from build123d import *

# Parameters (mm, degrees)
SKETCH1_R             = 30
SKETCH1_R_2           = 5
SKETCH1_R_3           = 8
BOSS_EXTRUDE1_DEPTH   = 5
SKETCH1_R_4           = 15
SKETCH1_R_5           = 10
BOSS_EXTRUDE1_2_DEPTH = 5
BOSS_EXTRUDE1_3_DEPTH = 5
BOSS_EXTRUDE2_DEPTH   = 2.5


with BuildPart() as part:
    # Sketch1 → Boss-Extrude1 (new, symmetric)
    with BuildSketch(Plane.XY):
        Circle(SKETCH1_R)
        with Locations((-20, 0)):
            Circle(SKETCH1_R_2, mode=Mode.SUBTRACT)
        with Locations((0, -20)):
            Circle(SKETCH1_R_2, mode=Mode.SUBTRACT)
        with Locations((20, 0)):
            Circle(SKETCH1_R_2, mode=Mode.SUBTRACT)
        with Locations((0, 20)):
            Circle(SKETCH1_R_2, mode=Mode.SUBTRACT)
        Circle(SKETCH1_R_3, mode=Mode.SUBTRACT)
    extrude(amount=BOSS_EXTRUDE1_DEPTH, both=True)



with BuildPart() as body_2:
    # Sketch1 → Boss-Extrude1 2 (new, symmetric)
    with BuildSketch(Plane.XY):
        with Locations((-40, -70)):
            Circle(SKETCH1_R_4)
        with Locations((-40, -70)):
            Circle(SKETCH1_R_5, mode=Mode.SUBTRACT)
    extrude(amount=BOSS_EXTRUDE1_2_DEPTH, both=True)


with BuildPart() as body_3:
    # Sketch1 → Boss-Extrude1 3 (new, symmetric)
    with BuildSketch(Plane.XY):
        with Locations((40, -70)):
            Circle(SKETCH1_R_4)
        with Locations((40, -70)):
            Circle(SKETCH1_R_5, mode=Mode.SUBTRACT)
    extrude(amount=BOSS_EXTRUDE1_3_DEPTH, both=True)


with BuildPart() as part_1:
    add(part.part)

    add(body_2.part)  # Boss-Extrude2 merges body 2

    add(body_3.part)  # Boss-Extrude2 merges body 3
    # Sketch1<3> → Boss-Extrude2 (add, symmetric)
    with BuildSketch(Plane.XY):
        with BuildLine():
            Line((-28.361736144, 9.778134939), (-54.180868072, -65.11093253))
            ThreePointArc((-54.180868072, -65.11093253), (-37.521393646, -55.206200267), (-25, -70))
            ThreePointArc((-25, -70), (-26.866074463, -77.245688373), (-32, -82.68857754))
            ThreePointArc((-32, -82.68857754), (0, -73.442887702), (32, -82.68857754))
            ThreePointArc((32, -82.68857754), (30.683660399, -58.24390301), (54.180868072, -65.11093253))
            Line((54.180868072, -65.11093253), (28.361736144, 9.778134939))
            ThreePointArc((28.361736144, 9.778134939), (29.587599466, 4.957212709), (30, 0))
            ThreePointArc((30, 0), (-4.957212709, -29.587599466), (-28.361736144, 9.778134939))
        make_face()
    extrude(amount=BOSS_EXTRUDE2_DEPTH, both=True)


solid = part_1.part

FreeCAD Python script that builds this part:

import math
import FreeCAD as App
import Part
import Sketcher
Q = App.Units.Quantity

doc = App.newDocument("Part")
body = doc.addObject("PartDesign::Body", "Body")

# Sketch on XY plane
sketch1 = doc.addObject("Sketcher::SketchObject", "Sketch")
body.addObject(sketch1)
sketch1.AttachmentSupport = (doc.XY_Plane, [""])
sketch1.MapMode = "FlatFace"
sketch1.addGeometry(Part.Circle(App.Vector(0, 0, 0), App.Vector(0, 0, 1), 30), False)
sketch1.addGeometry(Part.Circle(App.Vector(0, -20, 0), App.Vector(0, 0, 1), 5), False)
sketch1.addGeometry(Part.Circle(App.Vector(-20, 0, 0), App.Vector(0, 0, 1), 5), False)
sketch1.addGeometry(Part.Circle(App.Vector(0, 0, 0), App.Vector(0, 0, 1), 8), False)
sketch1.addGeometry(Part.Circle(App.Vector(20, 0, 0), App.Vector(0, 0, 1), 5), False)
sketch1.addGeometry(Part.Circle(App.Vector(0, 20, 0), App.Vector(0, 0, 1), 5), False)
sketch1.addConstraint(Sketcher.Constraint("Coincident", 0, 3, -1, 1))
sketch1.addConstraint(Sketcher.Constraint("Coincident", 3, 3, -1, 1))
sketch1.addConstraint(Sketcher.Constraint("Equal", 1, 2))
sketch1.addConstraint(Sketcher.Constraint("Equal", 2, 4))
sketch1.addConstraint(Sketcher.Constraint("Equal", 4, 5))
sketch1.addConstraint(Sketcher.Constraint("Symmetric", 2, 3, 4, 3, -1, 1))
sketch1.addConstraint(Sketcher.Constraint("Symmetric", 1, 3, 5, 3, -1, 1))
sketch1.addConstraint(Sketcher.Constraint("PointOnObject", 1, 3, -2))
sketch1.addConstraint(Sketcher.Constraint("PointOnObject", 2, 3, -1))
sketch1.addConstraint(Sketcher.Constraint("Diameter", 0, Q("60 mm")))
sketch1.addConstraint(Sketcher.Constraint("Diameter", 1, Q("10 mm")))
sketch1.addConstraint(Sketcher.Constraint("Diameter", 3, Q("16 mm")))
sketch1.addConstraint(Sketcher.Constraint("DistanceY", 1, 3, -1, 1, Q("20 mm")))
sketch1.addConstraint(Sketcher.Constraint("DistanceX", 2, 3, -1, 1, Q("20 mm")))
pad1 = doc.addObject("PartDesign::Pad", "Pad")
body.addObject(pad1)
pad1.Profile = sketch1
pad1.Length = 10
pad1.Midplane = True
body2 = doc.addObject("PartDesign::Body", "Body001")

# Sketch on XY plane
sketch2 = doc.addObject("Sketcher::SketchObject", "Sketch001")
body2.addObject(sketch2)
sketch2.AttachmentSupport = (doc.getObject("XY_Plane001"), [""])
sketch2.MapMode = "FlatFace"
sketch2.addGeometry(Part.Circle(App.Vector(-40, -70, 0), App.Vector(0, 0, 1), 15), False)
sketch2.addGeometry(Part.Circle(App.Vector(-40, -70, 0), App.Vector(0, 0, 1), 10), False)
sketch2.addConstraint(Sketcher.Constraint("Coincident", 1, 3, 0, 3))
sketch2.addConstraint(Sketcher.Constraint("Diameter", 0, Q("30 mm")))
sketch2.addConstraint(Sketcher.Constraint("Diameter", 1, Q("20 mm")))
sketch2.addConstraint(Sketcher.Constraint("DistanceX", 0, 3, -1, 1, Q("40 mm")))
sketch2.addConstraint(Sketcher.Constraint("DistanceY", 0, 3, -1, 1, Q("70 mm")))
pad2 = doc.addObject("PartDesign::Pad", "Pad001")
body2.addObject(pad2)
pad2.Profile = sketch2
pad2.Length = 10
pad2.Midplane = True
body3 = doc.addObject("PartDesign::Body", "Body002")

# Sketch on XY plane
sketch3 = doc.addObject("Sketcher::SketchObject", "Sketch002")
body3.addObject(sketch3)
sketch3.AttachmentSupport = (doc.getObject("XY_Plane002"), [""])
sketch3.MapMode = "FlatFace"
sketch3.addGeometry(Part.Circle(App.Vector(40, -70, 0), App.Vector(0, 0, 1), 15), False)
sketch3.addGeometry(Part.Circle(App.Vector(40, -70, 0), App.Vector(0, 0, 1), 10), False)
sketch3.addConstraint(Sketcher.Constraint("Coincident", 1, 3, 0, 3))
sketch3.addConstraint(Sketcher.Constraint("Diameter", 0, Q("30 mm")))
sketch3.addConstraint(Sketcher.Constraint("Diameter", 1, Q("20 mm")))
sketch3.addConstraint(Sketcher.Constraint("DistanceX", -1, 1, 0, 3, Q("40 mm")))
sketch3.addConstraint(Sketcher.Constraint("DistanceY", 0, 3, -1, 1, Q("70 mm")))
pad3 = doc.addObject("PartDesign::Pad", "Pad002")
body3.addObject(pad3)
pad3.Profile = sketch3
pad3.Length = 10
pad3.Midplane = True
body.AllowCompound = True
doc.recompute()

boolean = doc.addObject("PartDesign::Boolean", "Boolean")
body.addObject(boolean)
boolean.Type = "Fuse"
boolean.addObjects([body2])
doc.recompute()

boolean2 = doc.addObject("PartDesign::Boolean", "Boolean001")
body.addObject(boolean2)
boolean2.Type = "Fuse"
boolean2.addObjects([body3])

# Sketch on XY plane
sketch4 = doc.addObject("Sketcher::SketchObject", "Sketch003")
body.addObject(sketch4)
sketch4.AttachmentSupport = (doc.XY_Plane, [""])
sketch4.MapMode = "FlatFace"
sketch4.addGeometry(Part.LineSegment(App.Vector(-28.361736, 9.778135, 0), App.Vector(-54.180868, -65.110933, 0)), False)
sketch4.addGeometry(Part.ArcOfCircle(Part.Circle(App.Vector(-40, -70, 0), App.Vector(0, 0, 1), 15), math.radians(0), math.radians(160.977597)), False)
sketch4.addGeometry(Part.ArcOfCircle(Part.Circle(App.Vector(-40, -70, 0), App.Vector(0, 0, 1), 15), math.radians(-57.769047), math.radians(0)), False)
sketch4.addGeometry(Part.ArcOfCircle(Part.Circle(App.Vector(0, -133.442888, 0), App.Vector(0, 0, 1), 60), math.radians(57.769047), math.radians(122.230953)), False)
sketch4.addGeometry(Part.ArcOfCircle(Part.Circle(App.Vector(40, -70, 0), App.Vector(0, 0, 1), 15), math.radians(19.022403), math.radians(237.769047)), False)
sketch4.addGeometry(Part.LineSegment(App.Vector(54.180868, -65.110933, 0), App.Vector(28.361736, 9.778135, 0)), False)
sketch4.addGeometry(Part.ArcOfCircle(Part.Circle(App.Vector(0, 0, 0), App.Vector(0, 0, 1), 30), math.radians(0), math.radians(19.022403)), False)
sketch4.addGeometry(Part.ArcOfCircle(Part.Circle(App.Vector(0, 0, 0), App.Vector(0, 0, 1), 30), math.radians(160.977597), math.radians(360)), False)
sketch4.addConstraint(Sketcher.Constraint("Tangent", 0, 2, 1, 2))
sketch4.addConstraint(Sketcher.Constraint("Tangent", 1, 1, 2, 2))
sketch4.addConstraint(Sketcher.Constraint("Tangent", 2, 1, 3, 2))
sketch4.addConstraint(Sketcher.Constraint("Tangent", 3, 1, 4, 2))
sketch4.addConstraint(Sketcher.Constraint("Tangent", 4, 1, 5, 1))
sketch4.addConstraint(Sketcher.Constraint("Tangent", 5, 2, 6, 2))
sketch4.addConstraint(Sketcher.Constraint("Tangent", 6, 1, 7, 2))
sketch4.addConstraint(Sketcher.Constraint("Tangent", 7, 1, 0, 1))
sketch4.addConstraint(Sketcher.Constraint("Coincident", 6, 3, -1, 1))
sketch4.addConstraint(Sketcher.Constraint("Equal", 1, 2))
sketch4.addConstraint(Sketcher.Constraint("Equal", 2, 4))
sketch4.addConstraint(Sketcher.Constraint("Equal", 6, 7))
sketch4.addConstraint(Sketcher.Constraint("Symmetric", 1, 3, 4, 3, -2))
sketch4.addConstraint(Sketcher.Constraint("PointOnObject", 6, 1, -1))
sketch4.addConstraint(Sketcher.Constraint("Horizontal", 4, 3, 1, 1))
sketch4.addConstraint(Sketcher.Constraint("Radius", 1, Q("15 mm")))
sketch4.addConstraint(Sketcher.Constraint("Radius", 3, Q("60 mm")))
sketch4.addConstraint(Sketcher.Constraint("Radius", 6, Q("30 mm")))
sketch4.addConstraint(Sketcher.Constraint("DistanceX", 1, 3, -1, 1, Q("40 mm")))
sketch4.addConstraint(Sketcher.Constraint("DistanceY", 1, 3, -1, 1, Q("70 mm")))
pad4 = doc.addObject("PartDesign::Pad", "Pad003")
body.addObject(pad4)
pad4.Profile = sketch4
pad4.Length = 5
pad4.Midplane = True

doc.recompute()
